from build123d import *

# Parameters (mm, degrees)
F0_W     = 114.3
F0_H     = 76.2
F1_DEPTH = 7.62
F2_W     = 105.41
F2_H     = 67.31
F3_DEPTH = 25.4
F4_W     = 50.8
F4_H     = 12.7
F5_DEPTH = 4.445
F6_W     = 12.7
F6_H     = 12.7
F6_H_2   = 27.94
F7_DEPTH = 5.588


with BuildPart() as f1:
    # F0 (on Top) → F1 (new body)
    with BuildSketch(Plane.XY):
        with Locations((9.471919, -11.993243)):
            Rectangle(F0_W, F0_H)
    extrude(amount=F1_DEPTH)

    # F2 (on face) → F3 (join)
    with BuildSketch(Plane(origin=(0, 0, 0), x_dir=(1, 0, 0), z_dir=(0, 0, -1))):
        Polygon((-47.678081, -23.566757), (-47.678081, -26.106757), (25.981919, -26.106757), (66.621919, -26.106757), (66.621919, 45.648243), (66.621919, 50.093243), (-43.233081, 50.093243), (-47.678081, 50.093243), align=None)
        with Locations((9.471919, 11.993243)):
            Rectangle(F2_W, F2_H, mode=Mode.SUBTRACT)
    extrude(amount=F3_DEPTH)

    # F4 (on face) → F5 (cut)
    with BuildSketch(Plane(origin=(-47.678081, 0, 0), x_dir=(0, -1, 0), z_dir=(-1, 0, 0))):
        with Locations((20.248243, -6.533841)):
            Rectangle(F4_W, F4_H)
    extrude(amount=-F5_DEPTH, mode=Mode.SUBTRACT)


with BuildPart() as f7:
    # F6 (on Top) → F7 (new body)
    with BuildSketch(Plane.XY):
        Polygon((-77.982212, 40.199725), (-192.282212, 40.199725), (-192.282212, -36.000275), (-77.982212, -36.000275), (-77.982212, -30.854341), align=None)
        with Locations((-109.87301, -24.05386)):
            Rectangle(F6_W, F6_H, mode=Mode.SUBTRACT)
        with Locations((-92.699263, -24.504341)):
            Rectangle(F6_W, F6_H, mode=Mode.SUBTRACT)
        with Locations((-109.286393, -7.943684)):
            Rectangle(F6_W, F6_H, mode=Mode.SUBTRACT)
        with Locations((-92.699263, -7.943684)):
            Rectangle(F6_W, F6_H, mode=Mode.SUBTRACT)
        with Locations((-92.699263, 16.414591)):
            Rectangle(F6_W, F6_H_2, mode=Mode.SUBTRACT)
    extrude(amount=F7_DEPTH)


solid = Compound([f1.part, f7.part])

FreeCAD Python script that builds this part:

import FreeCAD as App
import Part
import Sketcher

V = App.Vector
Q = App.Units.Quantity

doc = App.newDocument("Part")
body = doc.addObject("PartDesign::Body", "Body")

# Sketch on XY plane
sketch1 = body.newObject("Sketcher::SketchObject", "Sketch")
sketch1.AttachmentSupport = (doc.getObject("XY_Plane"), [""])
sketch1.MapMode = "FlatFace"
sketch1.addGeometry([
    Part.LineSegment(V(-48, 26, 0), V(-48, -50, 0)),
    Part.LineSegment(V(-48, -50, 0), V(67, -50, 0)),
    Part.LineSegment(V(67, -50, 0), V(67, 26, 0)),
    Part.LineSegment(V(67, 26, 0), V(-48, 26, 0)),
], False)
sketch1.addConstraint([
    Sketcher.Constraint("Coincident", 0, 2, 1, 1),
    Sketcher.Constraint("Coincident", 1, 2, 2, 1),
    Sketcher.Constraint("Coincident", 2, 2, 3, 1),
    Sketcher.Constraint("Coincident", 3, 2, 0, 1),
    Sketcher.Constraint("Vertical", 0),
    Sketcher.Constraint("Horizontal", 1),
    Sketcher.Constraint("Vertical", 2),
    Sketcher.Constraint("Horizontal", 3),
    Sketcher.Constraint("DistanceY", 0, 2, 0, 1, Q("3 in")),
    Sketcher.Constraint("DistanceX", 1, 1, 1, 2, Q("4.5 in")),
    Sketcher.Constraint("DistanceX", 0, 2, -1, 1, 47.678081),
    Sketcher.Constraint("DistanceY", 0, 2, -1, 1, 50.093243),
])
pad1 = body.newObject("PartDesign::Pad", "Pad")
pad1.Profile = sketch1
pad1.Length = Q("0.3 in")

# Sketch on XY plane
sketch2 = body.newObject("Sketcher::SketchObject", "Sketch001")
sketch2.AttachmentSupport = (doc.getObject("XY_Plane"), [""])
sketch2.MapMode = "FlatFace"
sketch2.addGeometry([
    Part.LineSegment(V(-48, 26, 0), V(67, 26, 0)),  # 0
    Part.LineSegment(V(67, 26, 0), V(67, -50, 0)),  # 1
    Part.LineSegment(V(67, -50, 0), V(-48, -50, 0)),  # 2
    Part.LineSegment(V(-48, -50, 0), V(-48, 26, 0)),  # 3
    Part.LineSegment(V(62, 22, 0), V(-43, 22, 0)),  # 4
    Part.LineSegment(V(-43, 22, 0), V(-43, -46, 0)),  # 5
    Part.LineSegment(V(-43, -46, 0), V(62, -46, 0)),  # 6
    Part.LineSegment(V(62, -46, 0), V(62, 22, 0)),  # 7
], False)
sketch2.addConstraint([
    Sketcher.Constraint("Coincident", 0, 2, 1, 1),
    Sketcher.Constraint("Coincident", 1, 2, 2, 1),
    Sketcher.Constraint("Coincident", 2, 2, 3, 1),
    Sketcher.Constraint("Coincident", 3, 2, 0, 1),
    Sketcher.Constraint("Coincident", 4, 2, 5, 1),
    Sketcher.Constraint("Coincident", 5, 2, 6, 1),
    Sketcher.Constraint("Coincident", 6, 2, 7, 1),
    Sketcher.Constraint("Coincident", 7, 2, 4, 1),
    Sketcher.Constraint("Horizontal", 0),
    Sketcher.Constraint("Vertical", 1),
    Sketcher.Constraint("Horizontal", 2),
    Sketcher.Constraint("Vertical", 3),
    Sketcher.Constraint("Horizontal", 4),
    Sketcher.Constraint("Vertical", 5),
    Sketcher.Constraint("Horizontal", 6),
    Sketcher.Constraint("Vertical", 7),
    Sketcher.Constraint("DistanceY", 1, 2, 1, 1, Q("3 in")),
    Sketcher.Constraint("DistanceX", 0, 1, 0, 2, Q("4.5 in")),
    Sketcher.Constraint("DistanceX", 4, 2, 4, 1, Q("4.15 in")),
    Sketcher.Constraint("DistanceY", 5, 2, 5, 1, Q("2.65 in")),
    Sketcher.Constraint("DistanceX", 3, 2, 4, 2, Q("0.175 in")),
    Sketcher.Constraint("DistanceY", 4, 2, 3, 2, Q("0.175 in")),
    Sketcher.Constraint("DistanceX", -1, 1, 0, 2, 66.621919),
    Sketcher.Constraint("DistanceY", -1, 1, 0, 2, 26.106757),
])
pad2 = body.newObject("PartDesign::Pad", "Pad001")
pad2.Profile = sketch2
pad2.Length = Q("1 in")
pad2.Reversed = True

# Sketch on YZ plane
sketch3 = body.newObject("Sketcher::SketchObject", "Sketch002")
sketch3.AttachmentSupport = (doc.getObject("YZ_Plane"), [""])
sketch3.MapMode = "FlatFace"
sketch3.AttachmentOffset = App.Placement(V(0, 0, -47.678081), App.Rotation())
sketch3.addGeometry([
    Part.LineSegment(V(5, 0, 0), V(5, -13, 0)),
    Part.LineSegment(V(5, -13, 0), V(-46, -13, 0)),
    Part.LineSegment(V(-46, -13, 0), V(-46, 0, 0)),
    Part.LineSegment(V(-46, 0, 0), V(5, 0, 0)),
], False)
sketch3.addConstraint([
    Sketcher.Constraint("Coincident", 0, 2, 1, 1),
    Sketcher.Constraint("Coincident", 1, 2, 2, 1),
    Sketcher.Constraint("Coincident", 2, 2, 3, 1),
    Sketcher.Constraint("Coincident", 3, 2, 0, 1),
    Sketcher.Constraint("Vertical", 0),
    Sketcher.Constraint("Horizontal", 1),
    Sketcher.Constraint("Vertical", 2),
    Sketcher.Constraint("Horizontal", 3),
    Sketcher.Constraint("DistanceX", 1, 2, 1, 1, Q("2 in")),
    Sketcher.Constraint("DistanceY", 0, 2, 0, 1, Q("0.5 in")),
    Sketcher.Constraint("DistanceY", 0, 2, -1, 1, 12.883841),
    Sketcher.Constraint("DistanceX", -1, 1, 0, 2, 5.151757),
])
pocket1 = body.newObject("PartDesign::Pocket", "Pocket")
pocket1.Profile = sketch3
pocket1.Length = Q("0.175 in")
pocket1.Reversed = True
body2 = doc.addObject("PartDesign::Body", "Body001")

# Sketch on XY plane
sketch4 = body2.newObject("Sketcher::SketchObject", "Sketch003")
sketch4.AttachmentSupport = (doc.getObject("XY_Plane001"), [""])
sketch4.MapMode = "FlatFace"
sketch4.addGeometry([
    Part.LineSegment(V(-78, 40, 0), V(-192, 40, 0)),  # 0
    Part.LineSegment(V(-192, 40, 0), V(-192, -36, 0)),  # 1
    Part.LineSegment(V(-192, -36, 0), V(-78, -36, 0)),  # 2
    Part.LineSegment(V(-78, -36, 0), V(-78, 40, 0)),  # 3
    Part.LineSegment(V(-104, -30, 0), V(-116, -30, 0)),  # 4
    Part.LineSegment(V(-116, -30, 0), V(-116, -18, 0)),  # 5
    Part.LineSegment(V(-116, -18, 0), V(-104, -18, 0)),  # 6
    Part.LineSegment(V(-104, -18, 0), V(-104, -30, 0)),  # 7
    Part.LineSegment(V(-103, -14, 0), V(-116, -14, 0)),  # 8
    Part.LineSegment(V(-116, -14, 0), V(-116, -2, 0)),  # 9
    Part.LineSegment(V(-116, -2, 0), V(-103, -2, 0)),  # 10
    Part.LineSegment(V(-103, -2, 0), V(-103, -14, 0)),  # 11
    Part.LineSegment(V(-86, -31, 0), V(-99, -31, 0)),  # 12
    Part.LineSegment(V(-99, -31, 0), V(-99, -18, 0)),  # 13
    Part.LineSegment(V(-99, -18, 0), V(-86, -18, 0)),  # 14
    Part.LineSegment(V(-86, -18, 0), V(-86, -31, 0)),  # 15
    Part.LineSegment(V(-86, -14, 0), V(-99, -14, 0)),  # 16
    Part.LineSegment(V(-99, -14, 0), V(-99, -2, 0)),  # 17
    Part.LineSegment(V(-99, -2, 0), V(-86, -2, 0)),  # 18
    Part.LineSegment(V(-86, -2, 0), V(-86, -14, 0)),  # 19
    Part.LineSegment(V(-86, 2, 0), V(-99, 2, 0)),  # 20
    Part.LineSegment(V(-99, 2, 0), V(-99, 30, 0)),  # 21
    Part.LineSegment(V(-99, 30, 0), V(-86, 30, 0)),  # 22
    Part.LineSegment(V(-86, 30, 0), V(-86, 2, 0)),  # 23
], False)
sketch4.addConstraint([
    Sketcher.Constraint("Coincident", 0, 2, 1, 1),
    Sketcher.Constraint("Coincident", 1, 2, 2, 1),
    Sketcher.Constraint("Coincident", 2, 2, 3, 1),
    Sketcher.Constraint("Coincident", 3, 2, 0, 1),
    Sketcher.Constraint("Coincident", 4, 2, 5, 1),
    Sketcher.Constraint("Coincident", 5, 2, 6, 1),
    Sketcher.Constraint("Coincident", 6, 2, 7, 1),
    Sketcher.Constraint("Coincident", 7, 2, 4, 1),
    Sketcher.Constraint("Coincident", 8, 2, 9, 1),
    Sketcher.Constraint("Coincident", 9, 2, 10, 1),
    Sketcher.Constraint("Coincident", 10, 2, 11, 1),
    Sketcher.Constraint("Coincident", 11, 2, 8, 1),
    Sketcher.Constraint("Coincident", 12, 2, 13, 1),
    Sketcher.Constraint("Coincident", 13, 2, 14, 1),
    Sketcher.Constraint("Coincident", 14, 2, 15, 1),
    Sketcher.Constraint("Coincident", 15, 2, 12, 1),
    Sketcher.Constraint("Coincident", 16, 2, 17, 1),
    Sketcher.Constraint("Coincident", 17, 2, 18, 1),
    Sketcher.Constraint("Coincident", 18, 2, 19, 1),
    Sketcher.Constraint("Coincident", 19, 2, 16, 1),
    Sketcher.Constraint("Coincident", 20, 2, 21, 1),
    Sketcher.Constraint("Coincident", 21, 2, 22, 1),
    Sketcher.Constraint("Coincident", 22, 2, 23, 1),
    Sketcher.Constraint("Coincident", 23, 2, 20, 1),
    Sketcher.Constraint("Horizontal", 0),
    Sketcher.Constraint("Vertical", 1),
    Sketcher.Constraint("Horizontal", 2),
    Sketcher.Constraint("Vertical", 3),
    Sketcher.Constraint("Horizontal", 4),
    Sketcher.Constraint("Vertical", 5),
    Sketcher.Constraint("Horizontal", 6),
    Sketcher.Constraint("Vertical", 7),
    Sketcher.Constraint("Horizontal", 8),
    Sketcher.Constraint("Vertical", 9),
    Sketcher.Constraint("Horizontal", 10),
    Sketcher.Constraint("Vertical", 11),
    Sketcher.Constraint("Horizontal", 12),
    Sketcher.Constraint("Vertical", 13),
    Sketcher.Constraint("Horizontal", 14),
    Sketcher.Constraint("Vertical", 15),
    Sketcher.Constraint("Horizontal", 16),
    Sketcher.Constraint("Vertical", 17),
    Sketcher.Constraint("Horizontal", 18),
    Sketcher.Constraint("Vertical", 19),
    Sketcher.Constraint("Horizontal", 20),
    Sketcher.Constraint("Vertical", 21),
    Sketcher.Constraint("Horizontal", 22),
    Sketcher.Constraint("Vertical", 23),
    Sketcher.Constraint("Horizontal", 11, 2, 16, 2),
    Sketcher.Constraint("Horizontal", 10, 2, 17, 2),
    Sketcher.Constraint("Vertical", 13, 2, 16, 2),
    Sketcher.Constraint("Vertical", 15, 2, 18, 2),
    Sketcher.Constraint("Vertical", 17, 2, 20, 2),
    Sketcher.Constraint("Vertical", 19, 2, 22, 2),
    Sketcher.Constraint("Equal", 6, 8),
    Sketcher.Constraint("Equal", 10, 12),
    Sketcher.Constraint("Equal", 22, 5),
    Sketcher.Constraint("Equal", 7, 9),
    Sketcher.Constraint("Equal", 11, 13),
    Sketcher.Constraint("DistanceY", 1, 2, 1, 1, Q("3 in")),
    Sketcher.Constraint("DistanceX", 0, 2, 0, 1, Q("4.5 in")),
    Sketcher.Constraint("DistanceX", 4, 2, 4, 1, Q("0.5 in")),
    Sketcher.Constraint("DistanceY", 21, 1, 21, 2, Q("1.1 in")),
    Sketcher.Constraint("DistanceX", 1, 2, 4, 2, 76.059202),
    Sketcher.Constraint("DistanceX", 0, 2, -1, 1, 192.282212),
    Sketcher.Constraint("DistanceY", 4, 2, -1, 1, 30.40386),
    Sketcher.Constraint("DistanceY", 12, 2, -1, 1, 30.854341),
    Sketcher.Constraint("DistanceY", -1, 1, 20, 2, 2.444591),
    Sketcher.Constraint("DistanceX", 8, 2, 2, 2, 37.654181),
    Sketcher.Constraint("DistanceY", 2, 2, 8, 2, 21.706591),
    Sketcher.Constraint("DistanceX", 11, 2, 12, 2, 3.88713),
    Sketcher.Constraint("DistanceY", -1, 1, 0, 2, 40.199725),
])
pad3 = body2.newObject("PartDesign::Pad", "Pad002")
pad3.Profile = sketch4
pad3.Length = Q("0.22 in")

doc.recompute()
